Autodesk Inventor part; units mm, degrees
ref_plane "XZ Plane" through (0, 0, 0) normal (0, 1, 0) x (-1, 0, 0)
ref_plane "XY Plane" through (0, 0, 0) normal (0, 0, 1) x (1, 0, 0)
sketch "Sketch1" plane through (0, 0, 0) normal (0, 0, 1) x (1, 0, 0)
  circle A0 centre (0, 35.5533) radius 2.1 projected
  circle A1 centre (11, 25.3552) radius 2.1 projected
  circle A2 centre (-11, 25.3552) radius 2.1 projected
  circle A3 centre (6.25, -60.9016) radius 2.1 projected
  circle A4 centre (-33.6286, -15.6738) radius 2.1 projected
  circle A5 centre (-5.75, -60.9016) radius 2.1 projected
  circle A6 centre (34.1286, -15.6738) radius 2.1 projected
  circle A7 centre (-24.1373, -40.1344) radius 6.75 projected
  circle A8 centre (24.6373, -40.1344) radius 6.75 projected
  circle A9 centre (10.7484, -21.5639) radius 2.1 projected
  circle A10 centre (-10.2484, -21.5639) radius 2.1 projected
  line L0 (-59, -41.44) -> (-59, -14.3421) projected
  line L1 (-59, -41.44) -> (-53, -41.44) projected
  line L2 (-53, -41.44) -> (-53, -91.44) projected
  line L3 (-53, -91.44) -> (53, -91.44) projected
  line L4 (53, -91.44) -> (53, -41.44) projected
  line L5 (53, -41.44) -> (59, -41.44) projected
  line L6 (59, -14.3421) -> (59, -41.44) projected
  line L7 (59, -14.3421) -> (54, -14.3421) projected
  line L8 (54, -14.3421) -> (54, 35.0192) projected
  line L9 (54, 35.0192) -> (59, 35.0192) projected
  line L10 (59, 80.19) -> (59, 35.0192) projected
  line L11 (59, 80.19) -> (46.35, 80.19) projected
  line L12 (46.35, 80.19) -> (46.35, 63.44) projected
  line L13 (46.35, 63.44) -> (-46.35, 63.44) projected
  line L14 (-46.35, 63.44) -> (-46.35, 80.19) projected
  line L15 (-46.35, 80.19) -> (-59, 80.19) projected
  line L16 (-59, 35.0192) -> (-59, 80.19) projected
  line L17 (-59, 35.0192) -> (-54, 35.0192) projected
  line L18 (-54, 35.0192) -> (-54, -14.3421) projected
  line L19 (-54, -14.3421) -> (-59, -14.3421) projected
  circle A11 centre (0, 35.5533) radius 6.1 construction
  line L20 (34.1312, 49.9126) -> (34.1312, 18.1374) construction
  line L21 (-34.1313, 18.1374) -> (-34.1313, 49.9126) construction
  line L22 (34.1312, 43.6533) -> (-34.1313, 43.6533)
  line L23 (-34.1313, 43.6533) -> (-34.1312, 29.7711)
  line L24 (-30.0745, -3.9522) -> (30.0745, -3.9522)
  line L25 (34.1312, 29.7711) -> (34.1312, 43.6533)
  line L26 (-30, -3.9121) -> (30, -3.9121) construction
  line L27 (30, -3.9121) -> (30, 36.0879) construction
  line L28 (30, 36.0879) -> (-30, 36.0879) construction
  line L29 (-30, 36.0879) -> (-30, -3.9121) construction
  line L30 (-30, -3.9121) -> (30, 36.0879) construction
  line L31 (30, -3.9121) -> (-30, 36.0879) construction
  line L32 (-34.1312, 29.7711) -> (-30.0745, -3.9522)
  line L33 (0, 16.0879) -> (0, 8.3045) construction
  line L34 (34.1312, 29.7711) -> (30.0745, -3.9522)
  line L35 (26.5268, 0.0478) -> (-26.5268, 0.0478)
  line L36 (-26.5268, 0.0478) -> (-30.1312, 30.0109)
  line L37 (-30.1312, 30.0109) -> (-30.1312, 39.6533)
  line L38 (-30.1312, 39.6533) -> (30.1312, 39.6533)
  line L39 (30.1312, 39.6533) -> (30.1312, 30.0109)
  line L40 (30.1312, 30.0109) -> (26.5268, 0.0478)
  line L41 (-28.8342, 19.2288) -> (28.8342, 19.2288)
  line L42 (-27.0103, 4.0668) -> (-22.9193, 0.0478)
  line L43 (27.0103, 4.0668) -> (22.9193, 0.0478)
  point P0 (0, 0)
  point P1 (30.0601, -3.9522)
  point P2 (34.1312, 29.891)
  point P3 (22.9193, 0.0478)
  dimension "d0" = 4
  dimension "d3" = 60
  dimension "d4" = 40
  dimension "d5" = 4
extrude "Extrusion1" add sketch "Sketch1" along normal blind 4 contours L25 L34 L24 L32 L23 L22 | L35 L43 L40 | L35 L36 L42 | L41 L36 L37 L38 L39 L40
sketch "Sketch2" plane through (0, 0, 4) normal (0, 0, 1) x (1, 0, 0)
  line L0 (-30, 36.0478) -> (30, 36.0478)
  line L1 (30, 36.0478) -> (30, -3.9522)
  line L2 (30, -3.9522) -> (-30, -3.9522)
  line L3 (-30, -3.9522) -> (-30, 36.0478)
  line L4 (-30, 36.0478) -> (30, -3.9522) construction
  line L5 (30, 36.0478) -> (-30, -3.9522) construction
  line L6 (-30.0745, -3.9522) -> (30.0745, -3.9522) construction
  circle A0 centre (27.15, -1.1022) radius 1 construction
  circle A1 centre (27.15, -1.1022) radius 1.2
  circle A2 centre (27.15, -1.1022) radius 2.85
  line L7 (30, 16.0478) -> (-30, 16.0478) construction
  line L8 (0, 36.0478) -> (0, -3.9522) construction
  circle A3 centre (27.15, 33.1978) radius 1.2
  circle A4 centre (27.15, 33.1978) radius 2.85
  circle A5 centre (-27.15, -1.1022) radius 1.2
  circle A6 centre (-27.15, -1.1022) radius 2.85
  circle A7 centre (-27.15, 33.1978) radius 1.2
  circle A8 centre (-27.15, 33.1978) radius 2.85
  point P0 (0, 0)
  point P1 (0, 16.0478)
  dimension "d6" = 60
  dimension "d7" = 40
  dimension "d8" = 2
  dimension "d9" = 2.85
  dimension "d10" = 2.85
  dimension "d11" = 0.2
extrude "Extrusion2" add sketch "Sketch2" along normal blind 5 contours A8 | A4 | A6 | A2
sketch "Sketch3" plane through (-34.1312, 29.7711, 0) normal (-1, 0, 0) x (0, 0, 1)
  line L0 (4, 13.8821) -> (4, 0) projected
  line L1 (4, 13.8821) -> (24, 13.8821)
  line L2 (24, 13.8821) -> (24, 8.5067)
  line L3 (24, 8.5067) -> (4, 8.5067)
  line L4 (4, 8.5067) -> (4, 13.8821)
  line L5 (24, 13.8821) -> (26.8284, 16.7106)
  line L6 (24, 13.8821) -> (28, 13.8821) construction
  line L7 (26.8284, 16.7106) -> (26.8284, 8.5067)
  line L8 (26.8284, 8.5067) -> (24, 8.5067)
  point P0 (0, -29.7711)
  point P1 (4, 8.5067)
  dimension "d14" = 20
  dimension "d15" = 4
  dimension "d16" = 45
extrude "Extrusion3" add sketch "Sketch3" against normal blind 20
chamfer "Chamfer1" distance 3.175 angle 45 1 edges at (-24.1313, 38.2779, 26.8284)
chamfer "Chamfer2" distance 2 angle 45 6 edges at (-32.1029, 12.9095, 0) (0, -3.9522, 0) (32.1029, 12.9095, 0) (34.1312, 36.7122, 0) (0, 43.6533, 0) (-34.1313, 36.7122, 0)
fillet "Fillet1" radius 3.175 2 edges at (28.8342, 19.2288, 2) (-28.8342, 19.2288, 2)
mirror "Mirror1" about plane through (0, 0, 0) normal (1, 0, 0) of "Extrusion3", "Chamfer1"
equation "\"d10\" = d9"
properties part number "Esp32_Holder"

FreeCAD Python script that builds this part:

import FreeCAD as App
import Part
import Sketcher
from FreeCAD import Vector
Q = App.Units.Quantity


def edges_at(feature, points):
    """Names of the edges that pass closest to the given points."""
    edges = feature.Shape.Edges
    near = lambda p: min(range(len(edges)), key=lambda i: edges[i].distToShape(Part.Vertex(*p))[0])
    return sorted({f"Edge{near(p) + 1}" for p in points})

doc = App.newDocument("Part")
body = doc.addObject("PartDesign::Body", "Body")

sketch1 = body.newObject("Sketcher::SketchObject", "Sketch")
sketch1.AttachmentSupport = (doc.getObject("XY_Plane"), [""])
sketch1.MapMode = "FlatFace"
sketch1.addGeometry(Part.LineSegment(Vector(34.1, 29.8, 0), Vector(34.1, 43.7, 0)), False)
sketch1.addGeometry(Part.LineSegment(Vector(34.1, 43.7, 0), Vector(-34.1, 43.7, 0)), False)
sketch1.addGeometry(Part.LineSegment(Vector(-34.1, 43.7, 0), Vector(-34.1, 29.8, 0)), False)
sketch1.addGeometry(Part.LineSegment(Vector(-34.1, 29.8, 0), Vector(-30.1, -4, 0)), False)
sketch1.addGeometry(Part.LineSegment(Vector(-30.1, -4, 0), Vector(30.1, -4, 0)), False)
sketch1.addGeometry(Part.LineSegment(Vector(30.1, -4, 0), Vector(34.1, 29.8, 0)), False)
sketch1.addGeometry(Part.LineSegment(Vector(28.8, 19.2, 0), Vector(27, 4.1, 0)), False)
sketch1.addGeometry(Part.LineSegment(Vector(27, 4.1, 0), Vector(22.9, 0, 0)), False)
sketch1.addGeometry(Part.LineSegment(Vector(22.9, 0, 0), Vector(-22.9, 0, 0)), False)
sketch1.addGeometry(Part.LineSegment(Vector(-22.9, 0, 0), Vector(-27, 4.1, 0)), False)
sketch1.addGeometry(Part.LineSegment(Vector(-27, 4.1, 0), Vector(-28.8, 19.2, 0)), False)
sketch1.addGeometry(Part.LineSegment(Vector(-28.8, 19.2, 0), Vector(28.8, 19.2, 0)), False)
sketch1.addGeometry(Part.Circle(Vector(11, 25.4, 0), Vector(0, 0, 1), 2.1), False)
sketch1.addGeometry(Part.Circle(Vector(0, 35.6, 0), Vector(0, 0, 1), 2.1), False)
sketch1.addGeometry(Part.Circle(Vector(-11, 25.4, 0), Vector(0, 0, 1), 2.1), False)
sketch1.addConstraint(Sketcher.Constraint("Coincident", 0, 2, 1, 1))
sketch1.addConstraint(Sketcher.Constraint("Coincident", 1, 2, 2, 1))
sketch1.addConstraint(Sketcher.Constraint("Coincident", 2, 2, 3, 1))
sketch1.addConstraint(Sketcher.Constraint("Coincident", 3, 2, 4, 1))
sketch1.addConstraint(Sketcher.Constraint("Coincident", 4, 2, 5, 1))
sketch1.addConstraint(Sketcher.Constraint("Coincident", 5, 2, 0, 1))
sketch1.addConstraint(Sketcher.Constraint("Coincident", 6, 2, 7, 1))
sketch1.addConstraint(Sketcher.Constraint("Coincident", 7, 2, 8, 1))
sketch1.addConstraint(Sketcher.Constraint("Coincident", 8, 2, 9, 1))
sketch1.addConstraint(Sketcher.Constraint("Coincident", 9, 2, 10, 1))
sketch1.addConstraint(Sketcher.Constraint("Coincident", 10, 2, 11, 1))
sketch1.addConstraint(Sketcher.Constraint("Coincident", 11, 2, 6, 1))
sketch1.addConstraint(Sketcher.Constraint("Vertical", 0))
sketch1.addConstraint(Sketcher.Constraint("Horizontal", 1))
sketch1.addConstraint(Sketcher.Constraint("Vertical", 2))
sketch1.addConstraint(Sketcher.Constraint("Horizontal", 4))
sketch1.addConstraint(Sketcher.Constraint("Horizontal", 8))
sketch1.addConstraint(Sketcher.Constraint("Horizontal", 11))
sketch1.addConstraint(Sketcher.Constraint("Equal", 12, 13))
sketch1.addConstraint(Sketcher.Constraint("Equal", 13, 14))
sketch1.addConstraint(Sketcher.Constraint("Symmetric", 12, 3, 14, 3, -2))
sketch1.addConstraint(Sketcher.Constraint("Symmetric", 2, 2, 5, 2, -2))
sketch1.addConstraint(Sketcher.Constraint("Symmetric", 6, 2, 9, 2, -2))
sketch1.addConstraint(Sketcher.Constraint("PointOnObject", 13, 3, -2))
sketch1.addConstraint(Sketcher.Constraint("Parallel", 5, 6))
sketch1.addConstraint(Sketcher.Constraint("Parallel", 3, 10))
sketch1.addConstraint(Sketcher.Constraint("Equal", 3, 5))
sketch1.addConstraint(Sketcher.Constraint("Equal", 7, 9))
sketch1.addConstraint(Sketcher.Constraint("DistanceY", 4, 2, 7, 2, Q("4 mm")))
sketch1.addConstraint(Sketcher.Constraint("Diameter", 12, Q("4.2 mm")))
sketch1.addConstraint(Sketcher.Constraint("DistanceX", -1, 1, 12, 3, Q("11 mm")))
sketch1.addConstraint(Sketcher.Constraint("Angle", 3, Q("-83.1406 deg")))
sketch1.addConstraint(Sketcher.Constraint("DistanceY", 13, 3, 0, 2, Q("8.1 mm")))
sketch1.addConstraint(Sketcher.Constraint("DistanceX", 4, 1, 4, 2, Q("60.149 mm")))
sketch1.addConstraint(Sketcher.Constraint("DistanceX", 1, 2, 1, 1, Q("68.2625 mm")))
sketch1.addConstraint(Sketcher.Constraint("DistanceX", 8, 2, 8, 1, Q("45.8386 mm")))
sketch1.addConstraint(Sketcher.Constraint("DistanceX", 11, 1, 11, 2, Q("57.6684 mm")))
sketch1.addConstraint(Sketcher.Constraint("DistanceY", 0, 1, 0, 2, Q("13.8822 mm")))
sketch1.addConstraint(Sketcher.Constraint("DistanceY", -1, 1, 2, 2, Q("29.771 mm")))
sketch1.addConstraint(Sketcher.Constraint("DistanceY", 12, 3, 13, 3, Q("10.198 mm")))
sketch1.addConstraint(Sketcher.Constraint("DistanceY", 4, 2, 6, 2, Q("8.019 mm")))
sketch1.addConstraint(Sketcher.Constraint("DistanceX", 6, 2, 5, 2, Q("7.121 mm")))
pad1 = body.newObject("PartDesign::Pad", "Pad")
pad1.Profile = sketch1
pad1.Length = 4

sketch2 = body.newObject("Sketcher::SketchObject", "Sketch001")
sketch2.AttachmentSupport = (doc.getObject("XY_Plane"), [""])
sketch2.MapMode = "FlatFace"
sketch2.AttachmentOffset = App.Placement(Vector(0, 0, 4), App.Rotation())
sketch2.addGeometry(Part.Circle(Vector(-27.1, 33.2, 0), Vector(0, 0, 1), 2.9), False)
sketch2.addGeometry(Part.Circle(Vector(-27.1, 33.2, 0), Vector(0, 0, 1), 1.2), False)
sketch2.addGeometry(Part.Circle(Vector(27.1, 33.2, 0), Vector(0, 0, 1), 2.9), False)
sketch2.addGeometry(Part.Circle(Vector(27.1, 33.2, 0), Vector(0, 0, 1), 1.2), False)
sketch2.addGeometry(Part.Circle(Vector(-27.1, -1.1, 0), Vector(0, 0, 1), 2.9), False)
sketch2.addGeometry(Part.Circle(Vector(-27.1, -1.1, 0), Vector(0, 0, 1), 1.2), False)
sketch2.addGeometry(Part.Circle(Vector(27.1, -1.1, 0), Vector(0, 0, 1), 2.9), False)
sketch2.addGeometry(Part.Circle(Vector(27.1, -1.1, 0), Vector(0, 0, 1), 1.2), False)
sketch2.addConstraint(Sketcher.Constraint("Coincident", 1, 3, 0, 3))
sketch2.addConstraint(Sketcher.Constraint("Coincident", 3, 3, 2, 3))
sketch2.addConstraint(Sketcher.Constraint("Coincident", 5, 3, 4, 3))
sketch2.addConstraint(Sketcher.Constraint("Coincident", 7, 3, 6, 3))
sketch2.addConstraint(Sketcher.Constraint("Equal", 0, 2))
sketch2.addConstraint(Sketcher.Constraint("Equal", 1, 3))
sketch2.addConstraint(Sketcher.Constraint("Equal", 2, 4))
sketch2.addConstraint(Sketcher.Constraint("Equal", 3, 5))
sketch2.addConstraint(Sketcher.Constraint("Equal", 4, 6))
sketch2.addConstraint(Sketcher.Constraint("Equal", 5, 7))
sketch2.addConstraint(Sketcher.Constraint("Symmetric", 0, 3, 2, 3, -2))
sketch2.addConstraint(Sketcher.Constraint("Symmetric", 4, 3, 6, 3, -2))
sketch2.addConstraint(Sketcher.Constraint("Vertical", 1, 3, 4, 3))
sketch2.addConstraint(Sketcher.Constraint("Diameter", 0, Q("5.7 mm")))
sketch2.addConstraint(Sketcher.Constraint("Diameter", 1, Q("2.4 mm")))
sketch2.addConstraint(Sketcher.Constraint("DistanceX", 0, 3, 2, 3, Q("54.3 mm")))
sketch2.addConstraint(Sketcher.Constraint("DistanceY", 4, 3, 0, 3, Q("34.3 mm")))
sketch2.addConstraint(Sketcher.Constraint("DistanceY", -1, 1, 0, 3, Q("33.1978 mm")))
pad2 = body.newObject("PartDesign::Pad", "Pad001")
pad2.Profile = sketch2
pad2.Length = 5

sketch3 = body.newObject("Sketcher::SketchObject", "Sketch002")
sketch3.AttachmentSupport = (doc.getObject("YZ_Plane"), [""])
sketch3.MapMode = "FlatFace"
sketch3.AttachmentOffset = App.Placement(Vector(0, 0, -34.1312), App.Rotation())
sketch3.addGeometry(Part.LineSegment(Vector(43.7, 24, 0), Vector(43.7, 4, 0)), False)
sketch3.addGeometry(Part.LineSegment(Vector(43.7, 4, 0), Vector(38.3, 4, 0)), False)
sketch3.addGeometry(Part.LineSegment(Vector(38.3, 4, 0), Vector(38.3, 26.8, 0)), False)
sketch3.addGeometry(Part.LineSegment(Vector(38.3, 26.8, 0), Vector(46.5, 26.8, 0)), False)
sketch3.addGeometry(Part.LineSegment(Vector(46.5, 26.8, 0), Vector(43.7, 24, 0)), False)
sketch3.addConstraint(Sketcher.Constraint("Coincident", 0, 2, 1, 1))
sketch3.addConstraint(Sketcher.Constraint("Coincident", 1, 2, 2, 1))
sketch3.addConstraint(Sketcher.Constraint("Coincident", 2, 2, 3, 1))
sketch3.addConstraint(Sketcher.Constraint("Coincident", 3, 2, 4, 1))
sketch3.addConstraint(Sketcher.Constraint("Coincident", 4, 2, 0, 1))
sketch3.addConstraint(Sketcher.Constraint("Vertical", 0))
sketch3.addConstraint(Sketcher.Constraint("Horizontal", 1))
sketch3.addConstraint(Sketcher.Constraint("Vertical", 2))
sketch3.addConstraint(Sketcher.Constraint("Horizontal", 3))
sketch3.addConstraint(Sketcher.Constraint("DistanceY", 0, 2, 0, 1, Q("20 mm")))
sketch3.addConstraint(Sketcher.Constraint("Distance", 4, Q("4 mm")))
sketch3.addConstraint(Sketcher.Constraint("DistanceY", -1, 1, 0, 2, Q("4 mm")))
sketch3.addConstraint(Sketcher.Constraint("Angle", 4, Q("-135.001 deg")))
sketch3.addConstraint(Sketcher.Constraint("DistanceX", 3, 1, 3, 2, Q("8.204 mm")))
sketch3.addConstraint(Sketcher.Constraint("DistanceX", -1, 1, 0, 2, Q("43.6532 mm")))
pad3 = body.newObject("PartDesign::Pad", "Pad002")
pad3.Profile = sketch3
pad3.Length = 20
doc.recompute()

chamfer = body.newObject("PartDesign::Chamfer", "Chamfer")
chamfer.Base = (pad3, edges_at(pad3, [(-24.131, 38.278, 26.828)]))
chamfer.Size = 3.175
doc.recompute()

chamfer2 = body.newObject("PartDesign::Chamfer", "Chamfer001")
chamfer2.Base = (chamfer, edges_at(chamfer, [
    (-32.103, 12.909, 0),
    (0, -3.952, 0),
    (32.103, 12.909, 0),
    (34.131, 36.712, 0),
    (0, 43.653, 0),
    (-34.131, 36.712, 0),
]))
chamfer2.Size = 2
doc.recompute()

fillet = body.newObject("PartDesign::Fillet", "Fillet")
fillet.Base = (chamfer2, edges_at(chamfer2, [(28.834, 19.229, 2), (-28.834, 19.229, 2)]))
fillet.Radius = 3.175
doc.recompute()

mirrored = body.newObject("PartDesign::Mirrored", "Mirrored")
mirrored.Originals = [pad3, chamfer]
mirrored.MirrorPlane = (doc.getObject("YZ_Plane"), [""])
body.Tip = mirrored

doc.recompute()
